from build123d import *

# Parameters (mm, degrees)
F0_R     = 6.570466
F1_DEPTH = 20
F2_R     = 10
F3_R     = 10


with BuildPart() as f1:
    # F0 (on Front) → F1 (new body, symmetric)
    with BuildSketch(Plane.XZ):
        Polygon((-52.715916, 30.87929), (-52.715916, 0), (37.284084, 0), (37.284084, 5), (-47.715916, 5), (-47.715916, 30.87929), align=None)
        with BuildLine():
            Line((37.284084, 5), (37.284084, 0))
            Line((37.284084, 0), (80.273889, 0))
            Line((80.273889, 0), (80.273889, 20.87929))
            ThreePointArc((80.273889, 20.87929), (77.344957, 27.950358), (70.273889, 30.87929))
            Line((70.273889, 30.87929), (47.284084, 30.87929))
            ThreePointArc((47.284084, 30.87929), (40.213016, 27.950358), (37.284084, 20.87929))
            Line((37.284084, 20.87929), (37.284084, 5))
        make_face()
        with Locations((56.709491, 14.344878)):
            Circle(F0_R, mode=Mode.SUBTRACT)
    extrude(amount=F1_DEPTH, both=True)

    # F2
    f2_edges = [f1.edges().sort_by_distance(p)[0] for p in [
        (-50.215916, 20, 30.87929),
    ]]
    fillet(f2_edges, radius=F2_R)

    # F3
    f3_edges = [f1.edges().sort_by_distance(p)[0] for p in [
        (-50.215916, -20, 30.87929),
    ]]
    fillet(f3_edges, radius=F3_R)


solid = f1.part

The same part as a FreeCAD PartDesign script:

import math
import FreeCAD as App
import Part
import Sketcher

V = App.Vector


def edges_at(feature, points):
    """Names of the edges that pass closest to the given points."""
    edges = feature.Shape.Edges
    near = lambda p: min(range(len(edges)), key=lambda i: edges[i].distToShape(Part.Vertex(*p))[0])
    return sorted({f"Edge{near(p) + 1}" for p in points})

doc = App.newDocument("Part")
body = doc.addObject("PartDesign::Body", "Body")

sketch1 = body.newObject("Sketcher::SketchObject", "Sketch")
sketch1.AttachmentSupport = (doc.getObject("XZ_Plane"), [""])
sketch1.MapMode = "FlatFace"
sketch1.addGeometry(Part.LineSegment(V(-53, 31, 0), V(-53, 0, 0)), False)
sketch1.addGeometry(Part.LineSegment(V(-53, 0, 0), V(80, 0, 0)), False)
sketch1.addGeometry(Part.LineSegment(V(80, 0, 0), V(80, 21, 0)), False)
sketch1.addGeometry(Part.ArcOfCircle(Part.Circle(V(70, 21, 0), V(0, 0, 1), 10), math.radians(0), math.radians(90)), False)
sketch1.addGeometry(Part.LineSegment(V(70, 31, 0), V(47, 31, 0)), False)
sketch1.addGeometry(Part.ArcOfCircle(Part.Circle(V(47, 21, 0), V(0, 0, 1), 10), math.radians(90), math.radians(180)), False)
sketch1.addGeometry(Part.LineSegment(V(37, 21, 0), V(37, 5, 0)), False)
sketch1.addGeometry(Part.LineSegment(V(37, 5, 0), V(-48, 5, 0)), False)
sketch1.addGeometry(Part.LineSegment(V(-48, 5, 0), V(-48, 31, 0)), False)
sketch1.addGeometry(Part.LineSegment(V(-48, 31, 0), V(-53, 31, 0)), False)
sketch1.addGeometry(Part.Circle(V(57, 14, 0), V(0, 0, 1), 7), False)
sketch1.addConstraint(Sketcher.Constraint("Coincident", 0, 2, 1, 1))
sketch1.addConstraint(Sketcher.Constraint("Coincident", 1, 2, 2, 1))
sketch1.addConstraint(Sketcher.Constraint("Tangent", 2, 2, 3, 1))
sketch1.addConstraint(Sketcher.Constraint("Tangent", 3, 2, 4, 1))
sketch1.addConstraint(Sketcher.Constraint("Tangent", 4, 2, 5, 1))
sketch1.addConstraint(Sketcher.Constraint("Tangent", 5, 2, 6, 1))
sketch1.addConstraint(Sketcher.Constraint("Coincident", 6, 2, 7, 1))
sketch1.addConstraint(Sketcher.Constraint("Coincident", 7, 2, 8, 1))
sketch1.addConstraint(Sketcher.Constraint("Coincident", 8, 2, 9, 1))
sketch1.addConstraint(Sketcher.Constraint("Coincident", 9, 2, 0, 1))
sketch1.addConstraint(Sketcher.Constraint("Vertical", 0))
sketch1.addConstraint(Sketcher.Constraint("Horizontal", 1))
sketch1.addConstraint(Sketcher.Constraint("Vertical", 2))
sketch1.addConstraint(Sketcher.Constraint("Horizontal", 4))
sketch1.addConstraint(Sketcher.Constraint("Vertical", 6))
sketch1.addConstraint(Sketcher.Constraint("Horizontal", 7))
sketch1.addConstraint(Sketcher.Constraint("Vertical", 8))
sketch1.addConstraint(Sketcher.Constraint("Horizontal", 9))
sketch1.addConstraint(Sketcher.Constraint("Equal", 3, 5))
sketch1.addConstraint(Sketcher.Constraint("PointOnObject", 0, 2, -1))
sketch1.addConstraint(Sketcher.Constraint("Horizontal", 4, 2, 8, 2))
sketch1.addConstraint(Sketcher.Constraint("Radius", 3, 9.999999))
sketch1.addConstraint(Sketcher.Constraint("DistanceX", 7, 2, 7, 1, 85.0))
sketch1.addConstraint(Sketcher.Constraint("DistanceX", 9, 2, 9, 1, 5.0))
sketch1.addConstraint(Sketcher.Constraint("DistanceY", -1, 1, 6, 2, 5.0))
sketch1.addConstraint(Sketcher.Constraint("Diameter", 10, 13.140932))
sketch1.addConstraint(Sketcher.Constraint("DistanceY", 0, 2, 0, 1, 30.87929))
sketch1.addConstraint(Sketcher.Constraint("DistanceX", 10, 3, 3, 3, 13.564399))
sketch1.addConstraint(Sketcher.Constraint("DistanceX", 1, 1, 1, 2, 132.989805))
sketch1.addConstraint(Sketcher.Constraint("DistanceX", -1, 1, 3, 3, 70.27389))
sketch1.addConstraint(Sketcher.Constraint("DistanceY", 10, 3, 3, 2, 16.534412))
pad1 = body.newObject("PartDesign::Pad", "Pad")
pad1.Profile = sketch1
pad1.Length = 40
pad1.Midplane = True
doc.recompute()

fillet = body.newObject("PartDesign::Fillet", "Fillet")
fillet.Base = (pad1, edges_at(pad1, [(-50.216, 20, 30.879)]))
fillet.Radius = 10
doc.recompute()

fillet2 = body.newObject("PartDesign::Fillet", "Fillet001")
fillet2.Base = (fillet, edges_at(fillet, [(-50.216, -20, 30.879)]))
fillet2.Radius = 10

doc.recompute()
